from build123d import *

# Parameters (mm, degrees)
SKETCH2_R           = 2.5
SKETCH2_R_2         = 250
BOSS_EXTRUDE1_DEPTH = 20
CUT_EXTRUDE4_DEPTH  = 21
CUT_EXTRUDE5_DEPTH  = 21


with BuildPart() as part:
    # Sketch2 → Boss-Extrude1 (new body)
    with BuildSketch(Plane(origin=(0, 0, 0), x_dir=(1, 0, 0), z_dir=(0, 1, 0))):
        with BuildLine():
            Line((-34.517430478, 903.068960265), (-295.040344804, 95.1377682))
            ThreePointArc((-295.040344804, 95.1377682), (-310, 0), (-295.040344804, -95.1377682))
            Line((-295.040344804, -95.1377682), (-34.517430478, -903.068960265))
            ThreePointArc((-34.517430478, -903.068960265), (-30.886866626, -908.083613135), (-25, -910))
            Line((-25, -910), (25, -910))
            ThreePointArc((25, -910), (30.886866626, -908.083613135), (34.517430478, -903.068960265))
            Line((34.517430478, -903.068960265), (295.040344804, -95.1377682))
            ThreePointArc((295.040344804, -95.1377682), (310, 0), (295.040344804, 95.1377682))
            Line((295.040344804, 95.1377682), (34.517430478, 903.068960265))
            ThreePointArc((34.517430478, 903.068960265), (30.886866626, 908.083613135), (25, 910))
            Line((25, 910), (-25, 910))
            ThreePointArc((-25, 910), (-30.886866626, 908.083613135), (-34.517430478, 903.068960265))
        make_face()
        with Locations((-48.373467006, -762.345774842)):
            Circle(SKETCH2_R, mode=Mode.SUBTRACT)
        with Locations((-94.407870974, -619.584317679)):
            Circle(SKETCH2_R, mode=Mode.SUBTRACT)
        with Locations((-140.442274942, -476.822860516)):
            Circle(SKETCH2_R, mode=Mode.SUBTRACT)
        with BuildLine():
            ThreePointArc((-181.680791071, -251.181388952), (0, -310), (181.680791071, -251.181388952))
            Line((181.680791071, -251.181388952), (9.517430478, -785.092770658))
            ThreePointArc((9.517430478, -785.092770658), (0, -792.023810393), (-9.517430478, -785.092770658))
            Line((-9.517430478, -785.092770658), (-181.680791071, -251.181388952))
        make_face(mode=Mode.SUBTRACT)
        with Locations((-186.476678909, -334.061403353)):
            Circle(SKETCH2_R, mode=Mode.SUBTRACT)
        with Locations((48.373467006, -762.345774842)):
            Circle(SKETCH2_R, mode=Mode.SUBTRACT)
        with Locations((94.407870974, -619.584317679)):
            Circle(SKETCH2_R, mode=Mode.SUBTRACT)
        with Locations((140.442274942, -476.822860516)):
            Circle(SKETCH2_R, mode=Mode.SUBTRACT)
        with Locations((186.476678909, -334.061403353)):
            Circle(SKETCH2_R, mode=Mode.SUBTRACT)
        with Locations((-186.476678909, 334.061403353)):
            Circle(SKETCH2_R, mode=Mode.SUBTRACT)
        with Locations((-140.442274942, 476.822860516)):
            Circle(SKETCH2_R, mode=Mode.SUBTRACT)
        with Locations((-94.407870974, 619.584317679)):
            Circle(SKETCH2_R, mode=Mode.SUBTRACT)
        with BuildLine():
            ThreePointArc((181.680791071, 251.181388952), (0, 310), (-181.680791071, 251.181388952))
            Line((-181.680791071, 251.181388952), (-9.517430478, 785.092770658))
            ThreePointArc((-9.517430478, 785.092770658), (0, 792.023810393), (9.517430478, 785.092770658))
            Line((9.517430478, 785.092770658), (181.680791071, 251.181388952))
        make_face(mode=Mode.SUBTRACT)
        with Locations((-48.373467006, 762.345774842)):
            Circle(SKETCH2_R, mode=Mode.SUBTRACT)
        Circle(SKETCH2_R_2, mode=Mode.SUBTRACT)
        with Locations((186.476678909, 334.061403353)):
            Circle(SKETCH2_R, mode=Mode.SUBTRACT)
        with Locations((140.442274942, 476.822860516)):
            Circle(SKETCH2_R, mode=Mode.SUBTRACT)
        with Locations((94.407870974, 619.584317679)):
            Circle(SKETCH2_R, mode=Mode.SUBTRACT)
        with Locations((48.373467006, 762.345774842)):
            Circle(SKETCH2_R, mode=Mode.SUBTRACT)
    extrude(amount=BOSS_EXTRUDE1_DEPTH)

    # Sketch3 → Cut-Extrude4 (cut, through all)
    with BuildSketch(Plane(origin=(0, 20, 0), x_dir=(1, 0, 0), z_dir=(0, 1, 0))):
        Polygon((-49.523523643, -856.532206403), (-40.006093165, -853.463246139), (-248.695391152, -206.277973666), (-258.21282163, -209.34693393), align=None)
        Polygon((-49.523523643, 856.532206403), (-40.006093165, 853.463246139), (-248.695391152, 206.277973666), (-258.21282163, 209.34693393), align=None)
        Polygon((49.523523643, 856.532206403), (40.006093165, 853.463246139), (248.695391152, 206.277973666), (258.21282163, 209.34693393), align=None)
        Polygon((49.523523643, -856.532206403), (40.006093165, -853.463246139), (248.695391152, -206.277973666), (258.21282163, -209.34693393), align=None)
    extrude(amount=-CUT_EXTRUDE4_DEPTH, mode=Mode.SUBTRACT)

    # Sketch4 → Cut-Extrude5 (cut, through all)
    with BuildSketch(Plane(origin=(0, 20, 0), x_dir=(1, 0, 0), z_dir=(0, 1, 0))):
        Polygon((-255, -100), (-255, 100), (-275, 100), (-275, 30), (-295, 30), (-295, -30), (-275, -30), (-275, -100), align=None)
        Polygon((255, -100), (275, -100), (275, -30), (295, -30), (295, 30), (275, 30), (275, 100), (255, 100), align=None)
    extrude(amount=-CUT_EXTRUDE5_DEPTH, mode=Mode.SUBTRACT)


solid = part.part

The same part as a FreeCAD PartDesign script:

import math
import FreeCAD as App
import Part
import Sketcher

V = App.Vector
Q = App.Units.Quantity


def add_polygon(sketch, points):
    """Adds a closed chain of lines whose ends are joined by coincident constraints."""
    first, n = sketch.GeometryCount, len(points)
    for a, b in zip(points, points[1:] + points[:1]):
        sketch.addGeometry(Part.LineSegment(App.Vector(*a, 0), App.Vector(*b, 0)), False)
    for i in range(n):
        sketch.addConstraint(Sketcher.Constraint("Coincident", first + i, 2, first + (i + 1) % n, 1))

doc = App.newDocument("Part")
body = doc.addObject("PartDesign::Body", "Body")

sketch1 = body.newObject("Sketcher::SketchObject", "Sketch")
sketch1.AttachmentSupport = (doc.getObject("XZ_Plane"), [""])
sketch1.MapMode = "FlatFace"
sketch1.addGeometry([
    Part.LineSegment(V(-34.5, -903.1, 0), V(-295, -95.1, 0)),
    Part.ArcOfCircle(Part.Circle(V(0, 0, 0), V(0, 0, 1), 310), math.radians(162), math.radians(198)),
    Part.LineSegment(V(-295, 95.1, 0), V(-34.5, 903.1, 0)),
    Part.ArcOfCircle(Part.Circle(V(-25, 900, 0), V(0, 0, 1), 10), math.radians(90), math.radians(162)),
    Part.LineSegment(V(-25, 910, 0), V(25, 910, 0)),
    Part.ArcOfCircle(Part.Circle(V(25, 900, 0), V(0, 0, 1), 10), math.radians(18), math.radians(90)),
    Part.LineSegment(V(34.5, 903.1, 0), V(295, 95.1, 0)),
    Part.ArcOfCircle(Part.Circle(V(0, 0, 0), V(0, 0, 1), 310), math.radians(-18), math.radians(18)),
    Part.LineSegment(V(295, -95.1, 0), V(34.5, -903.1, 0)),
    Part.ArcOfCircle(Part.Circle(V(25, -900, 0), V(0, 0, 1), 10), math.radians(-90), math.radians(-18)),
    Part.LineSegment(V(25, -910, 0), V(-25, -910, 0)),
    Part.ArcOfCircle(Part.Circle(V(-25, -900, 0), V(0, 0, 1), 10), math.radians(-162), math.radians(-90)),
    Part.Circle(V(-140.4, 476.8, 0), V(0, 0, 1), 2.5),
    Part.Circle(V(-94.4, 619.6, 0), V(0, 0, 1), 2.5),
    Part.Circle(V(-48.4, 762.3, 0), V(0, 0, 1), 2.5),
    Part.Circle(V(-186.5, 334.1, 0), V(0, 0, 1), 2.5),
    Part.Circle(V(48.4, 762.3, 0), V(0, 0, 1), 2.5),
    Part.Circle(V(94.4, 619.6, 0), V(0, 0, 1), 2.5),
    Part.LineSegment(V(-9.5, 785.1, 0), V(-181.7, 251.2, 0)),
    Part.ArcOfCircle(Part.Circle(V(0, 0, 0), V(0, 0, 1), 310), math.radians(54), math.radians(126)),
    Part.LineSegment(V(181.7, 251.2, 0), V(9.5, 785.1, 0)),
    Part.ArcOfCircle(Part.Circle(V(0, 782, 0), V(0, 0, 1), 10), math.radians(18), math.radians(162)),
    Part.Circle(V(140.4, 476.8, 0), V(0, 0, 1), 2.5),
    Part.Circle(V(186.5, 334.1, 0), V(0, 0, 1), 2.5),
    Part.Circle(V(-186.5, -334.1, 0), V(0, 0, 1), 2.5),
    Part.Circle(V(-140.4, -476.8, 0), V(0, 0, 1), 2.5),
    Part.Circle(V(-94.4, -619.6, 0), V(0, 0, 1), 2.5),
    Part.Circle(V(-48.4, -762.3, 0), V(0, 0, 1), 2.5),
    Part.Circle(V(0, 0, 0), V(0, 0, 1), 250),
    Part.Circle(V(186.5, -334.1, 0), V(0, 0, 1), 2.5),
    Part.LineSegment(V(9.5, -785.1, 0), V(181.7, -251.2, 0)),
    Part.ArcOfCircle(Part.Circle(V(0, 0, 0), V(0, 0, 1), 310), math.radians(-126), math.radians(-54)),
    Part.LineSegment(V(-181.7, -251.2, 0), V(-9.5, -785.1, 0)),
    Part.ArcOfCircle(Part.Circle(V(0, -782, 0), V(0, 0, 1), 10), math.radians(-162), math.radians(-18)),
    Part.Circle(V(48.4, -762.3, 0), V(0, 0, 1), 2.5),
    Part.Circle(V(94.4, -619.6, 0), V(0, 0, 1), 2.5),
    Part.Circle(V(140.4, -476.8, 0), V(0, 0, 1), 2.5),
], False)
sketch1.addConstraint([
    Sketcher.Constraint("Tangent", 0, 2, 1, 2),
    Sketcher.Constraint("Tangent", 1, 1, 2, 1),
    Sketcher.Constraint("Tangent", 2, 2, 3, 2),
    Sketcher.Constraint("Tangent", 3, 1, 4, 1),
    Sketcher.Constraint("Tangent", 4, 2, 5, 2),
    Sketcher.Constraint("Tangent", 5, 1, 6, 1),
    Sketcher.Constraint("Tangent", 6, 2, 7, 2),
    Sketcher.Constraint("Tangent", 7, 1, 8, 1),
    Sketcher.Constraint("Tangent", 8, 2, 9, 2),
    Sketcher.Constraint("Tangent", 9, 1, 10, 1),
    Sketcher.Constraint("Tangent", 10, 2, 11, 2),
    Sketcher.Constraint("Tangent", 11, 1, 0, 1),
    Sketcher.Constraint("Coincident", 18, 2, 19, 2),
    Sketcher.Constraint("Coincident", 19, 1, 20, 1),
    Sketcher.Constraint("Tangent", 20, 2, 21, 1),
    Sketcher.Constraint("Tangent", 21, 2, 18, 1),
    Sketcher.Constraint("Coincident", 30, 2, 31, 2),
    Sketcher.Constraint("Coincident", 31, 1, 32, 1),
    Sketcher.Constraint("Tangent", 32, 2, 33, 1),
    Sketcher.Constraint("Tangent", 33, 2, 30, 1),
    Sketcher.Constraint("Horizontal", 4),
    Sketcher.Constraint("Horizontal", 10),
    Sketcher.Constraint("Coincident", 1, 3, -1, 1),
    Sketcher.Constraint("Coincident", 7, 3, -1, 1),
    Sketcher.Constraint("Coincident", 19, 3, -1, 1),
    Sketcher.Constraint("Coincident", 28, 3, -1, 1),
    Sketcher.Constraint("Coincident", 31, 3, -1, 1),
    Sketcher.Constraint("Equal", 3, 5),
    Sketcher.Constraint("Equal", 1, 7),
    Sketcher.Constraint("Equal", 5, 9),
    Sketcher.Constraint("Equal", 9, 11),
    Sketcher.Constraint("Equal", 12, 13),
    Sketcher.Constraint("Equal", 13, 14),
    Sketcher.Constraint("Equal", 14, 15),
    Sketcher.Constraint("Equal", 15, 16),
    Sketcher.Constraint("Equal", 16, 17),
    Sketcher.Constraint("Equal", 7, 19),
    Sketcher.Constraint("Equal", 11, 21),
    Sketcher.Constraint("Equal", 17, 22),
    Sketcher.Constraint("Equal", 22, 23),
    Sketcher.Constraint("Equal", 23, 24),
    Sketcher.Constraint("Equal", 24, 25),
    Sketcher.Constraint("Equal", 25, 26),
    Sketcher.Constraint("Equal", 26, 27),
    Sketcher.Constraint("Equal", 27, 29),
    Sketcher.Constraint("Equal", 19, 31),
    Sketcher.Constraint("Equal", 21, 33),
    Sketcher.Constraint("Equal", 29, 34),
    Sketcher.Constraint("Equal", 34, 35),
    Sketcher.Constraint("Equal", 35, 36),
    Sketcher.Constraint("Symmetric", 3, 3, 9, 3, -1, 1),
    Sketcher.Constraint("Symmetric", 23, 3, 24, 3, -1, 1),
    Sketcher.Constraint("Symmetric", 22, 3, 25, 3, -1, 1),
    Sketcher.Constraint("Symmetric", 17, 3, 26, 3, -1, 1),
    Sketcher.Constraint("Symmetric", 16, 3, 27, 3, -1, 1),
    Sketcher.Constraint("Symmetric", 15, 3, 29, 3, -1, 1),
    Sketcher.Constraint("Symmetric", 21, 3, 33, 3, -1, 1),
    Sketcher.Constraint("Symmetric", 14, 3, 34, 3, -1, 1),
    Sketcher.Constraint("Symmetric", 13, 3, 35, 3, -1, 1),
    Sketcher.Constraint("Symmetric", 12, 3, 36, 3, -1, 1),
    Sketcher.Constraint("Symmetric", 14, 3, 16, 3, -2),
    Sketcher.Constraint("Symmetric", 13, 3, 17, 3, -2),
    Sketcher.Constraint("Symmetric", 12, 3, 22, 3, -2),
    Sketcher.Constraint("Symmetric", 15, 3, 23, 3, -2),
    Sketcher.Constraint("PointOnObject", 21, 3, -2),
    Sketcher.Constraint("Parallel", 0, 6),
    Sketcher.Constraint("Parallel", 8, 18),
    Sketcher.Constraint("Parallel", 6, 20),
    Sketcher.Constraint("Parallel", 18, 30),
    Sketcher.Constraint("Parallel", 20, 32),
    Sketcher.Constraint("Vertical", 5, 3, 9, 3),
    Sketcher.Constraint("Diameter", 12, Q("5 mm")),
    Sketcher.Constraint("Diameter", 28, Q("500 mm")),
    Sketcher.Constraint("Radius", 1, Q("310 mm")),
    Sketcher.Constraint("Radius", 3, Q("10 mm")),
    Sketcher.Constraint("DistanceX", 4, 1, 4, 2, Q("50 mm")),
    Sketcher.Constraint("DistanceY", -1, 1, 3, 3, Q("900 mm")),
    Sketcher.Constraint("DistanceY", -1, 1, 12, 3, Q("476.822861 mm")),
    Sketcher.Constraint("DistanceX", 13, 3, -1, 1, Q("94.407871 mm")),
    Sketcher.Constraint("DistanceX", 15, 3, -1, 1, Q("186.476679 mm")),
    Sketcher.Constraint("DistanceY", -1, 1, 21, 3, Q("782.02381 mm")),
    Sketcher.Constraint("DistanceX", 15, 3, 14, 3, Q("138.103212 mm")),
    Sketcher.Constraint("DistanceY", 15, 3, 14, 3, Q("428.284371 mm")),
    Sketcher.Constraint("DistanceX", 12, 3, 16, 3, Q("188.815742 mm")),
    Sketcher.Constraint("DistanceY", -1, 1, 13, 3, Q("619.584318 mm")),
    Sketcher.Constraint("DistanceY", -1, 1, 14, 3, Q("762.345775 mm")),
])
pad1 = body.newObject("PartDesign::Pad", "Pad")
pad1.Profile = sketch1
pad1.Length = 20
pad1.Reversed = True

sketch2 = body.newObject("Sketcher::SketchObject", "Sketch001")
sketch2.AttachmentSupport = (doc.getObject("XZ_Plane"), [""])
sketch2.MapMode = "FlatFace"
sketch2.AttachmentOffset = App.Placement(V(0, 0, -20), App.Rotation())
add_polygon(sketch2, [(-50, 857), (-40, 853), (-249, 206), (-258, 209)])
add_polygon(sketch2, [(-40, -853), (-50, -857), (-258, -209), (-249, -206)])
add_polygon(sketch2, [(50, -857), (40, -853), (249, -206), (258, -209)])
add_polygon(sketch2, [(40, 853), (50, 857), (258, 209), (249, 206)])
sketch2.addConstraint([
    Sketcher.Constraint("Symmetric", 0, 2, 8, 2, -1, 1),
    Sketcher.Constraint("Symmetric", 1, 2, 9, 2, -1, 1),
    Sketcher.Constraint("Symmetric", 2, 2, 10, 2, -1, 1),
    Sketcher.Constraint("Symmetric", 3, 2, 11, 2, -1, 1),
    Sketcher.Constraint("Symmetric", 4, 2, 12, 2, -1, 1),
    Sketcher.Constraint("Symmetric", 5, 2, 13, 2, -1, 1),
    Sketcher.Constraint("Symmetric", 6, 2, 14, 2, -1, 1),
    Sketcher.Constraint("Symmetric", 7, 2, 15, 2, -1, 1),
    Sketcher.Constraint("Symmetric", 7, 2, 8, 2, -2),
    Sketcher.Constraint("Symmetric", 6, 2, 9, 2, -2),
    Sketcher.Constraint("Symmetric", 5, 2, 10, 2, -2),
    Sketcher.Constraint("Symmetric", 4, 2, 11, 2, -2),
    Sketcher.Constraint("Perpendicular", 0, 1),
    Sketcher.Constraint("Perpendicular", 1, 2),
    Sketcher.Constraint("Perpendicular", 2, 3),
    Sketcher.Constraint("Distance", 0, Q("10 mm")),
    Sketcher.Constraint("Distance", 1, Q("680 mm")),
    Sketcher.Constraint("DistanceX", 1, 2, -1, 1, Q("248.695391 mm")),
    Sketcher.Constraint("DistanceY", 1, 2, 2, 2, Q("3.06896 mm")),
    Sketcher.Constraint("DistanceY", 4, 2, 1, 2, Q("1062.81018 mm")),
])
pocket1 = body.newObject("PartDesign::Pocket", "Pocket")
pocket1.Profile = sketch2
pocket1.Type = "ThroughAll"
pocket1.Reversed = True

sketch3 = body.newObject("Sketcher::SketchObject", "Sketch002")
sketch3.AttachmentSupport = (doc.getObject("XZ_Plane"), [""])
sketch3.MapMode = "FlatFace"
sketch3.AttachmentOffset = App.Placement(V(0, 0, -20), App.Rotation())
add_polygon(sketch3, [(-255, 100), (-255, -100), (-275, -100), (-275, -30), (-295, -30), (-295, 30), (-275, 30), (-275, 100)])
add_polygon(sketch3, [(255, 100), (275, 100), (275, 30), (295, 30), (295, -30), (275, -30), (275, -100), (255, -100)])
sketch3.addConstraint([
    Sketcher.Constraint("Vertical", 0),
    Sketcher.Constraint("Horizontal", 1),
    Sketcher.Constraint("Vertical", 2),
    Sketcher.Constraint("Horizontal", 3),
    Sketcher.Constraint("Vertical", 4),
    Sketcher.Constraint("Horizontal", 5),
    Sketcher.Constraint("Vertical", 6),
    Sketcher.Constraint("Horizontal", 7),
    Sketcher.Constraint("Horizontal", 8),
    Sketcher.Constraint("Vertical", 9),
    Sketcher.Constraint("Horizontal", 10),
    Sketcher.Constraint("Vertical", 11),
    Sketcher.Constraint("Horizontal", 12),
    Sketcher.Constraint("Vertical", 13),
    Sketcher.Constraint("Horizontal", 14),
    Sketcher.Constraint("Vertical", 15),
    Sketcher.Constraint("Symmetric", 1, 2, 8, 2, -1, 1),
    Sketcher.Constraint("Symmetric", 3, 2, 10, 2, -1, 1),
    Sketcher.Constraint("Symmetric", 5, 2, 12, 2, -1, 1),
    Sketcher.Constraint("Symmetric", 7, 2, 14, 2, -1, 1),
    Sketcher.Constraint("Symmetric", 6, 2, 8, 2, -2),
    Sketcher.Constraint("Horizontal", 5, 2, 9, 2),
    Sketcher.Constraint("Equal", 1, 3),
    Sketcher.Constraint("DistanceX", 1, 2, 1, 1, Q("20 mm")),
    Sketcher.Constraint("DistanceY", 0, 2, 0, 1, Q("200 mm")),
    Sketcher.Constraint("DistanceY", 2, 1, 2, 2, Q("70 mm")),
    Sketcher.Constraint("DistanceX", 0, 2, -1, 1, Q("255 mm")),
])
pocket2 = body.newObject("PartDesign::Pocket", "Pocket001")
pocket2.Profile = sketch3
pocket2.Type = "ThroughAll"
pocket2.Reversed = True

doc.recompute()
